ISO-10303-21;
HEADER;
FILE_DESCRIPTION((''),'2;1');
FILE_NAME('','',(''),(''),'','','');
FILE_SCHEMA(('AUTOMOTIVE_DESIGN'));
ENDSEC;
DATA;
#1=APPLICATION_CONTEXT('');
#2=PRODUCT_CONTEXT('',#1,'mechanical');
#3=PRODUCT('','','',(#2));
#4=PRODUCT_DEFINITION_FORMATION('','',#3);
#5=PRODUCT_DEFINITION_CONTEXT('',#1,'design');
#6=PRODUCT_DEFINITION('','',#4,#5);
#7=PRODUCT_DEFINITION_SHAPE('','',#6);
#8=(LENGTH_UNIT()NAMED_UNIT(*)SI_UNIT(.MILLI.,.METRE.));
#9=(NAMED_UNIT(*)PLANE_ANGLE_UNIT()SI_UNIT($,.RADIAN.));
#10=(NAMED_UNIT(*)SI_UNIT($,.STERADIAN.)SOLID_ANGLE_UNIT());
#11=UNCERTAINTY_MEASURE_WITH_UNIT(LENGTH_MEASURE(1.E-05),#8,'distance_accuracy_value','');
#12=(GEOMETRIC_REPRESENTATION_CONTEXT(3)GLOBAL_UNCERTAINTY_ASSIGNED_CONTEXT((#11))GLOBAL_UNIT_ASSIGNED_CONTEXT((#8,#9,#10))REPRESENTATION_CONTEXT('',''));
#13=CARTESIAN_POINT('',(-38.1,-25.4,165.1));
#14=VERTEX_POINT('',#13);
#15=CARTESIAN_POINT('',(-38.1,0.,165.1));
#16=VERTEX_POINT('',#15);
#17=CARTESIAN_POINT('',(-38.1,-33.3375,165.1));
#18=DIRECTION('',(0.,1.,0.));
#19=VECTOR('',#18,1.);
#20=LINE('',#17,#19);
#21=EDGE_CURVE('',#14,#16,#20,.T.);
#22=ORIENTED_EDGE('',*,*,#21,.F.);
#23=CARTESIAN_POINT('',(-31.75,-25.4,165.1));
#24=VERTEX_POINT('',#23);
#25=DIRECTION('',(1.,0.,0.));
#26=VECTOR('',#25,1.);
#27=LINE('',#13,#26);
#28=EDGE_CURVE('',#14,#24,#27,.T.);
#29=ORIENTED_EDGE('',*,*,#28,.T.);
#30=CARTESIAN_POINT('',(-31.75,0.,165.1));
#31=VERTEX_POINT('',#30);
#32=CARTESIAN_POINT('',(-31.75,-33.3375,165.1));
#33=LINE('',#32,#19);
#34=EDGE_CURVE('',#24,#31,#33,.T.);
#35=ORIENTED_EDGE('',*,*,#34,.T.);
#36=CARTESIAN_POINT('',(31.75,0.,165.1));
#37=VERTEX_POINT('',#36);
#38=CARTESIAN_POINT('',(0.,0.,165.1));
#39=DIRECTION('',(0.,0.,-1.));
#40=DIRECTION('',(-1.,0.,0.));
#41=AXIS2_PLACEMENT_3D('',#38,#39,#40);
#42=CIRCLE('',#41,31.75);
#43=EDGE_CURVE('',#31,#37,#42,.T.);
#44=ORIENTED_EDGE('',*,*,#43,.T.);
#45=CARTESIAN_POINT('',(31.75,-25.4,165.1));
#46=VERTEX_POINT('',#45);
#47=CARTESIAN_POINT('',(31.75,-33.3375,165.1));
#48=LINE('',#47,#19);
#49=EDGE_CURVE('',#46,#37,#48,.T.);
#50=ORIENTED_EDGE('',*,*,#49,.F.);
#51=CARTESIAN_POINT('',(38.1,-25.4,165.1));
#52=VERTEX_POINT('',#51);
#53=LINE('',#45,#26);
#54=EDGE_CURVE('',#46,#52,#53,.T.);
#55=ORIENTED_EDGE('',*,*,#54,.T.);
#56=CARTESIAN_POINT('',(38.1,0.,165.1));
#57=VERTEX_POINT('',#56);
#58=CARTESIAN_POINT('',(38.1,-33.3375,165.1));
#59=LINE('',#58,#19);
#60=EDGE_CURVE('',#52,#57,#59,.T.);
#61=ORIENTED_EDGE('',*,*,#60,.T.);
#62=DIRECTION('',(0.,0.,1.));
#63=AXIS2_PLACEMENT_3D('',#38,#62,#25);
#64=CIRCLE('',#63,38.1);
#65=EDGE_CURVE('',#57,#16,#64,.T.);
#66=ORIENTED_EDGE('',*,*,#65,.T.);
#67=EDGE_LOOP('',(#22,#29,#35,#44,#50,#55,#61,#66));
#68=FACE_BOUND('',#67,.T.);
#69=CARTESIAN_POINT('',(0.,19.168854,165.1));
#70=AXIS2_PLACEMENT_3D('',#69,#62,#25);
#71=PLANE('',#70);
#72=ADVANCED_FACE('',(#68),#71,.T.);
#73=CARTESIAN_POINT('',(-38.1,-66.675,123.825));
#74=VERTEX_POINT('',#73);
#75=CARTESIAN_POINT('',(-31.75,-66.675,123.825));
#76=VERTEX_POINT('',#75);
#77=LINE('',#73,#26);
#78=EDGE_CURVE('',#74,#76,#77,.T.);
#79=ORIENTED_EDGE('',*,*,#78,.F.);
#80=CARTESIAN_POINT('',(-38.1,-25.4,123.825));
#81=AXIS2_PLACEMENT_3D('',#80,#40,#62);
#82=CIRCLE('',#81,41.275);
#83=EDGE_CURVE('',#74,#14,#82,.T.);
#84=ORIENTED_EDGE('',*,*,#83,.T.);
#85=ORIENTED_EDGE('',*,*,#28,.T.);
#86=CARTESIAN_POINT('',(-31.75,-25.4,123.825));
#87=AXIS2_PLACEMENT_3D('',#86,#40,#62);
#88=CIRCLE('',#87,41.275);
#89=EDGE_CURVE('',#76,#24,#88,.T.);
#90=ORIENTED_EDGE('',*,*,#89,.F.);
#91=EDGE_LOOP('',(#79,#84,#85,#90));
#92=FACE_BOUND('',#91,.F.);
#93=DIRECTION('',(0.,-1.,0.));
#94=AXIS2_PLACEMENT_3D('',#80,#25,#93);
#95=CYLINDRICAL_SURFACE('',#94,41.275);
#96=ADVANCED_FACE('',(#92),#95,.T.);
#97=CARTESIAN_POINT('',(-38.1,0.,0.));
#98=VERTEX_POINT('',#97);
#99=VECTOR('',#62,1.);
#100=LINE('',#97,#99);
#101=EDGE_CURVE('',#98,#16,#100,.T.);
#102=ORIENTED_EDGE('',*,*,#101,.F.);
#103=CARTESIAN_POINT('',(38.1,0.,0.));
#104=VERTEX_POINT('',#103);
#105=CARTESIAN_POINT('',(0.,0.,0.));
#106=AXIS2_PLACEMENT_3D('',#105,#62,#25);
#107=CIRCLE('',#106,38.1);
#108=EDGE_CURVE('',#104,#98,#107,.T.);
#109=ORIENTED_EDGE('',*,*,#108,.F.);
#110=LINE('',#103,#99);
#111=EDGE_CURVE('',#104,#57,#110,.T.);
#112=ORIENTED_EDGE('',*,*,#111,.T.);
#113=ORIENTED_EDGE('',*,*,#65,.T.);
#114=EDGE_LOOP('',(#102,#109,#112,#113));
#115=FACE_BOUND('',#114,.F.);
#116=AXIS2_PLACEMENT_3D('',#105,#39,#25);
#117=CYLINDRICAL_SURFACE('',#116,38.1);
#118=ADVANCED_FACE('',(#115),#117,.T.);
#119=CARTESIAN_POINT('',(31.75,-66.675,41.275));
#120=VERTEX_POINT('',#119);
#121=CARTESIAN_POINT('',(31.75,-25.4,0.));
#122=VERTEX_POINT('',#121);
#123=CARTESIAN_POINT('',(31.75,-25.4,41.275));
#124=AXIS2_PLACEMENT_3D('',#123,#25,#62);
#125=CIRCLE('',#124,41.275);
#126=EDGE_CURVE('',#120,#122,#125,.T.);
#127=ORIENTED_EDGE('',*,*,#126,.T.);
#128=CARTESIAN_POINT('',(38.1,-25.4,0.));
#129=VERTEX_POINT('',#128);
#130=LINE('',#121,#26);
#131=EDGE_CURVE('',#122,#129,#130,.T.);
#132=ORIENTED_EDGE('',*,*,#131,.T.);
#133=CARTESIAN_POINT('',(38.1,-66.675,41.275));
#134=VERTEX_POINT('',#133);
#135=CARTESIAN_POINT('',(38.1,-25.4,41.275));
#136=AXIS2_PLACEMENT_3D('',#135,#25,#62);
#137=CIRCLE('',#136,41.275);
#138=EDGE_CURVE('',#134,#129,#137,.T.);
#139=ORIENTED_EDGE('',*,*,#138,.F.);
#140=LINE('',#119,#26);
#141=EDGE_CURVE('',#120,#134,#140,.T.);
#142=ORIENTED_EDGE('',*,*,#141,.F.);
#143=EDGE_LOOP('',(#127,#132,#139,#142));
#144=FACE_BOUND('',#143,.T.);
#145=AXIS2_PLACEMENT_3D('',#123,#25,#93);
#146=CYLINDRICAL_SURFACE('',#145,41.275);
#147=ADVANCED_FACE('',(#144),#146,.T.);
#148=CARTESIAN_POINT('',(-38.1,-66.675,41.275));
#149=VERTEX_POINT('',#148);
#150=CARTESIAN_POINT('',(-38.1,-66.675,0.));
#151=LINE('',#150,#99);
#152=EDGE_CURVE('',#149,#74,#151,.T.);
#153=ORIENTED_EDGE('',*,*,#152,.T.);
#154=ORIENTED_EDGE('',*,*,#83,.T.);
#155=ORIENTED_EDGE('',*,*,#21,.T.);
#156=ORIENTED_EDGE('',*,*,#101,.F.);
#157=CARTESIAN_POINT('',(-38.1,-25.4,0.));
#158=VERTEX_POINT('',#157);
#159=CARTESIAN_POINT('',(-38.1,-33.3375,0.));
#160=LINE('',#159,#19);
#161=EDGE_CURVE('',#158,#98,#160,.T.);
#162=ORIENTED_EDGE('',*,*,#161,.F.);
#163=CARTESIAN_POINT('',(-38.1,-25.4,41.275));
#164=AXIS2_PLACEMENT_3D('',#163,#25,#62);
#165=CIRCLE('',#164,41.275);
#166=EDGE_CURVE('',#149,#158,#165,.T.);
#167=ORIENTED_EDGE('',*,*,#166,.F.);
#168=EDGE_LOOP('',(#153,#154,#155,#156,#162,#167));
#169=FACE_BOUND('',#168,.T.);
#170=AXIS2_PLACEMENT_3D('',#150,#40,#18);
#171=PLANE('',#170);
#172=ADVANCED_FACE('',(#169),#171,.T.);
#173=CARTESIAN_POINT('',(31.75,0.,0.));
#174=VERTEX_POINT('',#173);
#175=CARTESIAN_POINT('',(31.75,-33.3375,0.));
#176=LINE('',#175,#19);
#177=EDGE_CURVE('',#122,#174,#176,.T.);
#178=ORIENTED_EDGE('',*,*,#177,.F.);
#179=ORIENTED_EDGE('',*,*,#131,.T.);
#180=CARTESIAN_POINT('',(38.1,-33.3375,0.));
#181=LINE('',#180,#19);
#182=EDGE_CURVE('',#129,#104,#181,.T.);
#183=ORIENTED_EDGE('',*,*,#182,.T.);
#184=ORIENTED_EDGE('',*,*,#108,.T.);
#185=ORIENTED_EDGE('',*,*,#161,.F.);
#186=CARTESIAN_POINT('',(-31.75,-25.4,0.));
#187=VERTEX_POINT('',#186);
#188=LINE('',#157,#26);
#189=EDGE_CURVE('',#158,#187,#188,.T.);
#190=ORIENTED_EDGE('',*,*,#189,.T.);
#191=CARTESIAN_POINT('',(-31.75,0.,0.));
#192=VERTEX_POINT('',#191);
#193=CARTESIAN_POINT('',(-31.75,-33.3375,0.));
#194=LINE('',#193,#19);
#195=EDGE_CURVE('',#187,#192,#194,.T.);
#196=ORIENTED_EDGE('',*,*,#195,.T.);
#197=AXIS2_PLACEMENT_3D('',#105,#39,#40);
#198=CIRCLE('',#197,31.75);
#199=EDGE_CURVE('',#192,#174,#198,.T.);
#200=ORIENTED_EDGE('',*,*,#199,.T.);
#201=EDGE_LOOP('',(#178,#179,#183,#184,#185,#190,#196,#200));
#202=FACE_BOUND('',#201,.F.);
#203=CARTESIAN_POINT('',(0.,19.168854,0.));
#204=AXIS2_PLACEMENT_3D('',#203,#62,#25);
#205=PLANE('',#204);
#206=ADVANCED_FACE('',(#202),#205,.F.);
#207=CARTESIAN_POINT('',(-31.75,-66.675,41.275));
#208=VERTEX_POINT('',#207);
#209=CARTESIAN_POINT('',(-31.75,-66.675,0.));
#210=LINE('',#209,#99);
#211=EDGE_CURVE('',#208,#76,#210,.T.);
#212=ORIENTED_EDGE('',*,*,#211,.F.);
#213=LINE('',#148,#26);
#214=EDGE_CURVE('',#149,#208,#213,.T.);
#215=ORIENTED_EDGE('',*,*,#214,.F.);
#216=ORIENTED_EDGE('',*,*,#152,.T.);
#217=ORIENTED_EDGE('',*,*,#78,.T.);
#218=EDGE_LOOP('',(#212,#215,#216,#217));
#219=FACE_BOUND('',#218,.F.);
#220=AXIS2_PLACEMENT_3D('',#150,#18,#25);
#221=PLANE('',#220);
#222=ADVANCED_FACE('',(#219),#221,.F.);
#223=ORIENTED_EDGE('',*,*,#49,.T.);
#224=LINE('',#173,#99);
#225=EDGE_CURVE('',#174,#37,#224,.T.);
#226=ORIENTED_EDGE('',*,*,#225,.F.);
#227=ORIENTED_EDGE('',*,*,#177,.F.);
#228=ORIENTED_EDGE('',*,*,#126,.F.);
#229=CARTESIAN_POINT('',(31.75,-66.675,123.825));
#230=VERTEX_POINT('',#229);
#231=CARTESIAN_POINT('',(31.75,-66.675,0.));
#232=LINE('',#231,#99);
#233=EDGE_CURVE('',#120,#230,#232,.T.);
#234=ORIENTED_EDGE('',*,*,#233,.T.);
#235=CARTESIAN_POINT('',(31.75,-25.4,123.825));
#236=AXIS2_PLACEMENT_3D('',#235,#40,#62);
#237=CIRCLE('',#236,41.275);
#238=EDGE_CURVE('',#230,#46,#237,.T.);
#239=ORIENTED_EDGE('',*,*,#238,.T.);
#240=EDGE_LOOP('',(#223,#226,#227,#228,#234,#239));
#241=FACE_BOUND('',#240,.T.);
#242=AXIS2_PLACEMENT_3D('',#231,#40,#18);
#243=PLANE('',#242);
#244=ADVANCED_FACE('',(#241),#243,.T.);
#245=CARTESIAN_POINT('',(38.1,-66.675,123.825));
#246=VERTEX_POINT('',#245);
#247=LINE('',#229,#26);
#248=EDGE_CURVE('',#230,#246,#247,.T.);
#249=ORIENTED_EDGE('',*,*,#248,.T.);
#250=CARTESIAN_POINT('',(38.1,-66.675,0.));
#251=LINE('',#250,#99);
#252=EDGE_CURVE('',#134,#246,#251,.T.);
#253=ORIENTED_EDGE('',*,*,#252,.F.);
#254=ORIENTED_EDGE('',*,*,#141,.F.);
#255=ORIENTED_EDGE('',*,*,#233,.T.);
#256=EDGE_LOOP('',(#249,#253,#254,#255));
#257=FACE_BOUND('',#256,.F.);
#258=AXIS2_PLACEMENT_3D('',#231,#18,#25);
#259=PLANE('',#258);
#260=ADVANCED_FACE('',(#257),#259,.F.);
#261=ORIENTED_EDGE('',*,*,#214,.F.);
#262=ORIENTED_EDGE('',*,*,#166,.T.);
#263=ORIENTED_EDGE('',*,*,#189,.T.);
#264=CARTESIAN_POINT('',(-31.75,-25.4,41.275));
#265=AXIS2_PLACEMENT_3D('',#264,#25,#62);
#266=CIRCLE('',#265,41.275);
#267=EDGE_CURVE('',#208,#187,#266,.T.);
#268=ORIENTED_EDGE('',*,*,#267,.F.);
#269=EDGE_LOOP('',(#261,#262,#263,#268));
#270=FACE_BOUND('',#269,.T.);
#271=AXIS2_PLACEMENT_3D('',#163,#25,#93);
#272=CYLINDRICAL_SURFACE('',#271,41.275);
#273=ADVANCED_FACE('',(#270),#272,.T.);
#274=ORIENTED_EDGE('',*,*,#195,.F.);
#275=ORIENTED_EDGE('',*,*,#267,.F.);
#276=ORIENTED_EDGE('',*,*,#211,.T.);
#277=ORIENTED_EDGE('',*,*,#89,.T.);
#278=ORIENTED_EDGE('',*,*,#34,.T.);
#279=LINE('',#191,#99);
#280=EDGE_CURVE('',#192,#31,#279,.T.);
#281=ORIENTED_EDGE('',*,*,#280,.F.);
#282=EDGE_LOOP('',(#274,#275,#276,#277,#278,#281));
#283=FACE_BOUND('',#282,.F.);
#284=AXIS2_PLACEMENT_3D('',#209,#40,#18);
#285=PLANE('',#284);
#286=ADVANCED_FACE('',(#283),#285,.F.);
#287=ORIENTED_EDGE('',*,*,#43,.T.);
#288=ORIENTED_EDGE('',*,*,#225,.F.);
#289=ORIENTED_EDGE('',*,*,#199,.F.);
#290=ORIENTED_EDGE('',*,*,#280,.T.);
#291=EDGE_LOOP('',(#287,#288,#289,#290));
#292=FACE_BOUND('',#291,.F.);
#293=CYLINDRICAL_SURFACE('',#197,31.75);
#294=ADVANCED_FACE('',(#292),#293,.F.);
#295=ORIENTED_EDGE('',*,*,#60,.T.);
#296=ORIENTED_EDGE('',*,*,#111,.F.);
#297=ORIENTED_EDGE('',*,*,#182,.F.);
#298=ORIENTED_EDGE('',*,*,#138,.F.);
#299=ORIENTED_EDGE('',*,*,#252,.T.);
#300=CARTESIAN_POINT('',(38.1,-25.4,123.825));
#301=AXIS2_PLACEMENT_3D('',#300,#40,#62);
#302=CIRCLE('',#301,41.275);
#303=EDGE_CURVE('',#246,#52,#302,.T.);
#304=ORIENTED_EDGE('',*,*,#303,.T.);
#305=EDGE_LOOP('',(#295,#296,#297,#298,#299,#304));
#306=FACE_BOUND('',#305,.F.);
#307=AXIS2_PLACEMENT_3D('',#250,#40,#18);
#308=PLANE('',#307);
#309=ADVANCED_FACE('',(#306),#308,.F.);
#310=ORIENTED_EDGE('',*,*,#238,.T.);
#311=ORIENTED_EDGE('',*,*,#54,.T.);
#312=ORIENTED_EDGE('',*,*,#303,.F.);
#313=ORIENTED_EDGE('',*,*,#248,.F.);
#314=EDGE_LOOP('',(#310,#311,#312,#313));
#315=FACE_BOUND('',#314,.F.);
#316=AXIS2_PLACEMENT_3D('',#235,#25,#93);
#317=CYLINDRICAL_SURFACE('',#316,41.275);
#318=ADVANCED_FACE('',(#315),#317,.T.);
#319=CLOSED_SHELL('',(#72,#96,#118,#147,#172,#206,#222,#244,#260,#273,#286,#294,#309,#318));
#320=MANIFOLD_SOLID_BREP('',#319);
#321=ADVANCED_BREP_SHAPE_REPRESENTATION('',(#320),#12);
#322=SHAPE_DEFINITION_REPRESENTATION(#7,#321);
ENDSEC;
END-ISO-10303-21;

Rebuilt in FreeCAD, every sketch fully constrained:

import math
import FreeCAD as App
import Part
import Sketcher
from FreeCAD import Vector
Q = App.Units.Quantity


def edges_at(feature, points):
    """Names of the edges that pass closest to the given points."""
    edges = feature.Shape.Edges
    near = lambda p: min(range(len(edges)), key=lambda i: edges[i].distToShape(Part.Vertex(*p))[0])
    return sorted({f"Edge{near(p) + 1}" for p in points})

doc = App.newDocument("Part")
params = doc.addObject("Spreadsheet::Sheet", "Params")
for row, (alias, value) in enumerate([
    ("sketch1_radius", "1.5 in"),
    ("sketch1_radius2", "1.25 in"),
    ("sketch1_height", "2.625 in"),
    ("pad1_length", "6.5 in"),
    ("fillet_radius", "1.625 in"),
], start=1):
    params.set(f"A{row}", alias)
    params.set(f"B{row}", "=" + value)
    params.setAlias(f"B{row}", alias)

body = doc.addObject("PartDesign::Body", "Body")

# Sketch on XY plane
sketch1 = doc.addObject("Sketcher::SketchObject", "Sketch")
body.addObject(sketch1)
sketch1.AttachmentSupport = (doc.XY_Plane, [""])
sketch1.MapMode = "FlatFace"
sketch1.addGeometry(Part.ArcOfCircle(Part.Circle(Vector(0, 0, 0), Vector(0, 0, 1), 38), math.radians(0), math.radians(180)), False)
sketch1.addGeometry(Part.LineSegment(Vector(-38, 0, 0), Vector(-38, -67, 0)), False)
sketch1.addGeometry(Part.LineSegment(Vector(-38, -67, 0), Vector(-32, -67, 0)), False)
sketch1.addGeometry(Part.LineSegment(Vector(-32, -67, 0), Vector(-32, 0, 0)), False)
sketch1.addGeometry(Part.ArcOfCircle(Part.Circle(Vector(0, 0, 0), Vector(0, 0, 1), 32), math.radians(0), math.radians(180)), False)
sketch1.addGeometry(Part.LineSegment(Vector(32, 0, 0), Vector(32, -67, 0)), False)
sketch1.addGeometry(Part.LineSegment(Vector(32, -67, 0), Vector(38, -67, 0)), False)
sketch1.addGeometry(Part.LineSegment(Vector(38, -67, 0), Vector(38, 0, 0)), False)
sketch1.addConstraint(Sketcher.Constraint("Tangent", 0, 2, 1, 1))
sketch1.addConstraint(Sketcher.Constraint("Coincident", 1, 2, 2, 1))
sketch1.addConstraint(Sketcher.Constraint("Coincident", 2, 2, 3, 1))
sketch1.addConstraint(Sketcher.Constraint("Tangent", 3, 2, 4, 2))
sketch1.addConstraint(Sketcher.Constraint("Tangent", 4, 1, 5, 1))
sketch1.addConstraint(Sketcher.Constraint("Coincident", 5, 2, 6, 1))
sketch1.addConstraint(Sketcher.Constraint("Coincident", 6, 2, 7, 1))
sketch1.addConstraint(Sketcher.Constraint("Tangent", 7, 2, 0, 1))
sketch1.addConstraint(Sketcher.Constraint("Vertical", 1))
sketch1.addConstraint(Sketcher.Constraint("Horizontal", 2))
sketch1.addConstraint(Sketcher.Constraint("Vertical", 3))
sketch1.addConstraint(Sketcher.Constraint("Vertical", 5))
sketch1.addConstraint(Sketcher.Constraint("Horizontal", 6))
sketch1.addConstraint(Sketcher.Constraint("Vertical", 7))
sketch1.addConstraint(Sketcher.Constraint("Coincident", 0, 3, -1, 1))
sketch1.addConstraint(Sketcher.Constraint("Coincident", 4, 3, -1, 1))
sketch1.addConstraint(Sketcher.Constraint("Horizontal", 2, 2, 5, 2))
sketch1.addConstraint(Sketcher.Constraint("Radius", 0, Q("1.5 in")))
sketch1.addConstraint(Sketcher.Constraint("Radius", 4, Q("1.25 in")))
sketch1.addConstraint(Sketcher.Constraint("DistanceY", 1, 2, 1, 1, Q("2.625 in")))
sketch1.setExpression("Constraints[17]", "Params.sketch1_radius")
sketch1.setExpression("Constraints[18]", "Params.sketch1_radius2")
sketch1.setExpression("Constraints[19]", "Params.sketch1_height")
pad1 = doc.addObject("PartDesign::Pad", "Pad")
body.addObject(pad1)
pad1.Profile = sketch1
pad1.setExpression("Length", "Params.pad1_length")
doc.recompute()

fillet = doc.addObject("PartDesign::Fillet", "Fillet")
body.addObject(fillet)
fillet.Base = (pad1, edges_at(pad1, [
    (-34.925, -66.675, 165.1),
    (34.925, -66.675, 165.1),
    (-34.925, -66.675, 0),
    (34.925, -66.675, 0),
]))
fillet.setExpression("Radius", "Params.fillet_radius")

doc.recompute()
